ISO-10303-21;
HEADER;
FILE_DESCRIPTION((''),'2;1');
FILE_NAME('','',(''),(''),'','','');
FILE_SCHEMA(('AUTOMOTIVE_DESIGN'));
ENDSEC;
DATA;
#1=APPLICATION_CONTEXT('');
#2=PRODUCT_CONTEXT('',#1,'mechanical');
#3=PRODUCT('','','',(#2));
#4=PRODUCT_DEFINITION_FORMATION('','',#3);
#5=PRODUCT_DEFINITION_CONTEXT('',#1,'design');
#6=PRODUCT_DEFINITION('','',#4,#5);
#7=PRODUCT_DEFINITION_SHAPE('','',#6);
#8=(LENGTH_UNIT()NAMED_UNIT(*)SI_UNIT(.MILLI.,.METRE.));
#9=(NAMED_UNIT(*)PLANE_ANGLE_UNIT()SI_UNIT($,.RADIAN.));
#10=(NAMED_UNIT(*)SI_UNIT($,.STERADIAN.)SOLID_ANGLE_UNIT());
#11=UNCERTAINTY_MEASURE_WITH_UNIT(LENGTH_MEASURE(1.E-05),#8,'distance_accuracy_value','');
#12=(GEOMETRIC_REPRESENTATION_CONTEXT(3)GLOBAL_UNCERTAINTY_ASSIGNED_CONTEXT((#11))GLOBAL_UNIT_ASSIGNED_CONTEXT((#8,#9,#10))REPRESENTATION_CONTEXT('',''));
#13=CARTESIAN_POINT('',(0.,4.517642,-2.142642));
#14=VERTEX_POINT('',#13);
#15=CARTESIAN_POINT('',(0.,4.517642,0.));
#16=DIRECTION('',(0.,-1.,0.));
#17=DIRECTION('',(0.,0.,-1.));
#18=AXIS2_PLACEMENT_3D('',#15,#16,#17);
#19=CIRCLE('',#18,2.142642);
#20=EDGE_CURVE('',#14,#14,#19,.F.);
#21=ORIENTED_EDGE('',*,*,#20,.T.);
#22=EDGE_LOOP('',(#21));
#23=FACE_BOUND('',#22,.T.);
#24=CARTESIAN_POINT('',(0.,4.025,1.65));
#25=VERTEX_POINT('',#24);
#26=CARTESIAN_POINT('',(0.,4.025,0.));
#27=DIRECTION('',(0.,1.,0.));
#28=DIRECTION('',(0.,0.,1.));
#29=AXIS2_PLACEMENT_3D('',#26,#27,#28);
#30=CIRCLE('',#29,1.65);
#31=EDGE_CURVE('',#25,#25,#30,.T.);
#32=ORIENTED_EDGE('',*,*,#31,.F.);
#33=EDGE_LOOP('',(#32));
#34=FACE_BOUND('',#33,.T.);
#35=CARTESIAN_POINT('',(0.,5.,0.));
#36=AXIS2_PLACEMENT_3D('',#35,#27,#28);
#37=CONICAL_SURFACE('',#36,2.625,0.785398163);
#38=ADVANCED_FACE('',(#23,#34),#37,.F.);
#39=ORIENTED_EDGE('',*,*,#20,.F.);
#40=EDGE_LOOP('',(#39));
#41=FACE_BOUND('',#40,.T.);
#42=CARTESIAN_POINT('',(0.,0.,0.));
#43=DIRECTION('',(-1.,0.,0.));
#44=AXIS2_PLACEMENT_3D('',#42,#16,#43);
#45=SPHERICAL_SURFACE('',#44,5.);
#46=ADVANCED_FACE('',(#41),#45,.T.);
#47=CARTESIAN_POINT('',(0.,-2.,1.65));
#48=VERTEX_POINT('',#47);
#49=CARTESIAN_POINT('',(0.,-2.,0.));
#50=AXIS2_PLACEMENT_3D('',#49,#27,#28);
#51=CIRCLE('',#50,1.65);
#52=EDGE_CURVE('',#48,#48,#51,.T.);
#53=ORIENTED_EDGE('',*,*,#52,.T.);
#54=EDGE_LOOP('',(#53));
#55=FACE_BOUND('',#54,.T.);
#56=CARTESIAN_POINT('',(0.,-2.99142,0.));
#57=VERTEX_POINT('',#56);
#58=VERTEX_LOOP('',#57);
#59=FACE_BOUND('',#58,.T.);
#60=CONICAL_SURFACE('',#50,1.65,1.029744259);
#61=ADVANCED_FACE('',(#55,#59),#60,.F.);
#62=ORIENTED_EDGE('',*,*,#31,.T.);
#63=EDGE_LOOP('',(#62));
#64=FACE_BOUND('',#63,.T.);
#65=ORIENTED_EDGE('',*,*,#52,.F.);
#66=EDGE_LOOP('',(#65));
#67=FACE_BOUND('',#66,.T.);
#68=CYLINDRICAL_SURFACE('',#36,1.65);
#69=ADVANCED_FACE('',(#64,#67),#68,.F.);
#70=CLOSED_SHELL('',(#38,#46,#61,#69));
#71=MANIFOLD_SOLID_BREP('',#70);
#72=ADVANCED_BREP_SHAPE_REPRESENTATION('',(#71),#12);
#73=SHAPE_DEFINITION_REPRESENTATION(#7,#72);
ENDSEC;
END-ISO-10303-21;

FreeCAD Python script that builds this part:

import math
import FreeCAD as App
import Part
import Sketcher

V = App.Vector
Q = App.Units.Quantity

doc = App.newDocument("Part")
body = doc.addObject("PartDesign::Body", "Body")

# Sketch on XY plane
sketch1 = body.newObject("Sketcher::SketchObject", "Sketch")
sketch1.AttachmentSupport = (doc.getObject("XY_Plane"), [""])
sketch1.MapMode = "FlatFace"
sketch1.addGeometry(Part.LineSegment(V(0, 5, 0), V(0, -5, 0)), False)
sketch1.addGeometry(Part.ArcOfCircle(Part.Circle(V(0, 0, 0), V(0, 0, 1), 5), math.radians(-90), math.radians(90)), False)
sketch1.addConstraint(Sketcher.Constraint("Coincident", 0, 1, 1, 2))
sketch1.addConstraint(Sketcher.Constraint("Coincident", 1, 1, 0, 2))
sketch1.addConstraint(Sketcher.Constraint("Vertical", 0))
sketch1.addConstraint(Sketcher.Constraint("Coincident", 1, 3, -1, 1))
sketch1.addConstraint(Sketcher.Constraint("PointOnObject", 0, 1, -2))
sketch1.addConstraint(Sketcher.Constraint("Radius", 1, Q("5 mm")))
revolution = body.newObject("PartDesign::Revolution", "Revolution")
revolution.Profile = sketch1
revolution.ReferenceAxis = (sketch1, ["V_Axis"])
revolution.Angle = 360

# Sketch on XZ plane
sketch2 = body.newObject("Sketcher::SketchObject", "Sketch001")
sketch2.AttachmentSupport = (doc.getObject("XZ_Plane"), [""])
sketch2.MapMode = "FlatFace"
sketch2.AttachmentOffset = App.Placement(V(0, 0, -5), App.Rotation())
sketch2.addGeometry(Part.Circle(V(0, 0, 0), V(0, 0, 1), 1.6), False)
sketch2.addConstraint(Sketcher.Constraint("Coincident", 0, 3, -1, 1))
sketch2.addConstraint(Sketcher.Constraint("Diameter", 0, Q("3.3 mm")))
doc.recompute()
hole = body.newObject("PartDesign::Hole", "Hole")
hole.Profile = sketch2
hole.ThreadType = "None"
hole.Diameter = 3.3
hole.DepthType = "Dimension"
hole.Depth = 7
hole.DrillPoint = "Angled"
hole.DrillPointAngle = 118
hole.HoleCutType = "Countersink"
hole.HoleCutDiameter = 5.25
hole.HoleCutCountersinkAngle = 90
hole.Reversed = True

doc.recompute()
